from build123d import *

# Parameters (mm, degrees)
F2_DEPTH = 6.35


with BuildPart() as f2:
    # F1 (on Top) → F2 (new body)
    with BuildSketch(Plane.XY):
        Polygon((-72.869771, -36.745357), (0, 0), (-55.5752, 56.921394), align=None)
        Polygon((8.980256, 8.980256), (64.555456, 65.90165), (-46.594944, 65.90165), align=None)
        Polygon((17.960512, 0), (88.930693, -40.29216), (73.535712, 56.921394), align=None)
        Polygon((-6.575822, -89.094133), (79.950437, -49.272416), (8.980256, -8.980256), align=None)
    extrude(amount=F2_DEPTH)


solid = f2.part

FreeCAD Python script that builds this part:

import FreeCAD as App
import Part
import Sketcher
from FreeCAD import Vector
Q = App.Units.Quantity

doc = App.newDocument("Part")
body = doc.addObject("PartDesign::Body", "Body")
body.AllowCompound = True

# Sketch on XY plane
sketch1 = body.newObject("Sketcher::SketchObject", "Sketch")
sketch1.AttachmentSupport = (doc.getObject("XY_Plane"), [""])
sketch1.MapMode = "FlatFace"
sketch1.addGeometry([
    Part.LineSegment(Vector(-73, -37, 0), Vector(0, 0, 0)),  # 0
    Part.LineSegment(Vector(0, 0, 0), Vector(-56, 57, 0)),  # 1
    Part.LineSegment(Vector(-56, 57, 0), Vector(-73, -37, 0)),  # 2
    Part.LineSegment(Vector(9, 9, 0), Vector(65, 66, 0)),  # 3
    Part.LineSegment(Vector(65, 66, 0), Vector(-47, 66, 0)),  # 4
    Part.LineSegment(Vector(-47, 66, 0), Vector(9, 9, 0)),  # 5
    Part.LineSegment(Vector(18, 0, 0), Vector(89, -40, 0)),  # 6
    Part.LineSegment(Vector(89, -40, 0), Vector(74, 57, 0)),  # 7
    Part.LineSegment(Vector(74, 57, 0), Vector(18, 0, 0)),  # 8
    Part.LineSegment(Vector(-7, -89, 0), Vector(80, -49, 0)),  # 9
    Part.LineSegment(Vector(80, -49, 0), Vector(9, -9, 0)),  # 10
    Part.LineSegment(Vector(9, -9, 0), Vector(-7, -89, 0)),  # 11
], False)
sketch1.addConstraint([
    Sketcher.Constraint("Coincident", 0, 2, 1, 1),
    Sketcher.Constraint("Coincident", 1, 2, 2, 1),
    Sketcher.Constraint("Coincident", 2, 2, 0, 1),
    Sketcher.Constraint("Coincident", 3, 2, 4, 1),
    Sketcher.Constraint("Coincident", 4, 2, 5, 1),
    Sketcher.Constraint("Coincident", 5, 2, 3, 1),
    Sketcher.Constraint("Coincident", 6, 2, 7, 1),
    Sketcher.Constraint("Coincident", 7, 2, 8, 1),
    Sketcher.Constraint("Coincident", 8, 2, 6, 1),
    Sketcher.Constraint("Coincident", 9, 2, 10, 1),
    Sketcher.Constraint("Coincident", 10, 2, 11, 1),
    Sketcher.Constraint("Coincident", 11, 2, 9, 1),
    Sketcher.Constraint("Horizontal", 4),
    Sketcher.Constraint("Coincident", 0, 2, -1, 1),
    Sketcher.Constraint("Symmetric", 5, 2, 10, 2, -1),
    Sketcher.Constraint("PointOnObject", 8, 2, -1),
    Sketcher.Constraint("Parallel", 1, 5),
    Sketcher.Constraint("Parallel", 3, 8),
    Sketcher.Constraint("Parallel", 6, 10),
    Sketcher.Constraint("Horizontal", 1, 2, 7, 2),
    Sketcher.Constraint("Equal", 1, 3),
    Sketcher.Constraint("Equal", 3, 5),
    Sketcher.Constraint("Equal", 0, 6),
    Sketcher.Constraint("Equal", 2, 9),
    Sketcher.Constraint("Equal", 6, 10),
    Sketcher.Constraint("Equal", 10, 11),
    Sketcher.Constraint("Distance", 2, Q("3.75 in")),
    Sketcher.Constraint("DistanceX", 4, 2, 4, 1, Q("4.376 in")),
    Sketcher.Constraint("Angle", 0, Q("26.760011 deg")),
    Sketcher.Constraint("Distance", 0, Q("3.213 in")),
    Sketcher.Constraint("Distance", 7, Q("3.875 in")),
    Sketcher.Constraint("DistanceY", -1, 1, 3, 2, 65.90165),
    Sketcher.Constraint("DistanceX", 11, 2, -1, 1, 6.575822),
    Sketcher.Constraint("DistanceX", -1, 1, 6, 2, 88.930693),
])
pad1 = body.newObject("PartDesign::Pad", "Pad")
pad1.Profile = sketch1
pad1.Length = Q("0.25 in")

doc.recompute()
